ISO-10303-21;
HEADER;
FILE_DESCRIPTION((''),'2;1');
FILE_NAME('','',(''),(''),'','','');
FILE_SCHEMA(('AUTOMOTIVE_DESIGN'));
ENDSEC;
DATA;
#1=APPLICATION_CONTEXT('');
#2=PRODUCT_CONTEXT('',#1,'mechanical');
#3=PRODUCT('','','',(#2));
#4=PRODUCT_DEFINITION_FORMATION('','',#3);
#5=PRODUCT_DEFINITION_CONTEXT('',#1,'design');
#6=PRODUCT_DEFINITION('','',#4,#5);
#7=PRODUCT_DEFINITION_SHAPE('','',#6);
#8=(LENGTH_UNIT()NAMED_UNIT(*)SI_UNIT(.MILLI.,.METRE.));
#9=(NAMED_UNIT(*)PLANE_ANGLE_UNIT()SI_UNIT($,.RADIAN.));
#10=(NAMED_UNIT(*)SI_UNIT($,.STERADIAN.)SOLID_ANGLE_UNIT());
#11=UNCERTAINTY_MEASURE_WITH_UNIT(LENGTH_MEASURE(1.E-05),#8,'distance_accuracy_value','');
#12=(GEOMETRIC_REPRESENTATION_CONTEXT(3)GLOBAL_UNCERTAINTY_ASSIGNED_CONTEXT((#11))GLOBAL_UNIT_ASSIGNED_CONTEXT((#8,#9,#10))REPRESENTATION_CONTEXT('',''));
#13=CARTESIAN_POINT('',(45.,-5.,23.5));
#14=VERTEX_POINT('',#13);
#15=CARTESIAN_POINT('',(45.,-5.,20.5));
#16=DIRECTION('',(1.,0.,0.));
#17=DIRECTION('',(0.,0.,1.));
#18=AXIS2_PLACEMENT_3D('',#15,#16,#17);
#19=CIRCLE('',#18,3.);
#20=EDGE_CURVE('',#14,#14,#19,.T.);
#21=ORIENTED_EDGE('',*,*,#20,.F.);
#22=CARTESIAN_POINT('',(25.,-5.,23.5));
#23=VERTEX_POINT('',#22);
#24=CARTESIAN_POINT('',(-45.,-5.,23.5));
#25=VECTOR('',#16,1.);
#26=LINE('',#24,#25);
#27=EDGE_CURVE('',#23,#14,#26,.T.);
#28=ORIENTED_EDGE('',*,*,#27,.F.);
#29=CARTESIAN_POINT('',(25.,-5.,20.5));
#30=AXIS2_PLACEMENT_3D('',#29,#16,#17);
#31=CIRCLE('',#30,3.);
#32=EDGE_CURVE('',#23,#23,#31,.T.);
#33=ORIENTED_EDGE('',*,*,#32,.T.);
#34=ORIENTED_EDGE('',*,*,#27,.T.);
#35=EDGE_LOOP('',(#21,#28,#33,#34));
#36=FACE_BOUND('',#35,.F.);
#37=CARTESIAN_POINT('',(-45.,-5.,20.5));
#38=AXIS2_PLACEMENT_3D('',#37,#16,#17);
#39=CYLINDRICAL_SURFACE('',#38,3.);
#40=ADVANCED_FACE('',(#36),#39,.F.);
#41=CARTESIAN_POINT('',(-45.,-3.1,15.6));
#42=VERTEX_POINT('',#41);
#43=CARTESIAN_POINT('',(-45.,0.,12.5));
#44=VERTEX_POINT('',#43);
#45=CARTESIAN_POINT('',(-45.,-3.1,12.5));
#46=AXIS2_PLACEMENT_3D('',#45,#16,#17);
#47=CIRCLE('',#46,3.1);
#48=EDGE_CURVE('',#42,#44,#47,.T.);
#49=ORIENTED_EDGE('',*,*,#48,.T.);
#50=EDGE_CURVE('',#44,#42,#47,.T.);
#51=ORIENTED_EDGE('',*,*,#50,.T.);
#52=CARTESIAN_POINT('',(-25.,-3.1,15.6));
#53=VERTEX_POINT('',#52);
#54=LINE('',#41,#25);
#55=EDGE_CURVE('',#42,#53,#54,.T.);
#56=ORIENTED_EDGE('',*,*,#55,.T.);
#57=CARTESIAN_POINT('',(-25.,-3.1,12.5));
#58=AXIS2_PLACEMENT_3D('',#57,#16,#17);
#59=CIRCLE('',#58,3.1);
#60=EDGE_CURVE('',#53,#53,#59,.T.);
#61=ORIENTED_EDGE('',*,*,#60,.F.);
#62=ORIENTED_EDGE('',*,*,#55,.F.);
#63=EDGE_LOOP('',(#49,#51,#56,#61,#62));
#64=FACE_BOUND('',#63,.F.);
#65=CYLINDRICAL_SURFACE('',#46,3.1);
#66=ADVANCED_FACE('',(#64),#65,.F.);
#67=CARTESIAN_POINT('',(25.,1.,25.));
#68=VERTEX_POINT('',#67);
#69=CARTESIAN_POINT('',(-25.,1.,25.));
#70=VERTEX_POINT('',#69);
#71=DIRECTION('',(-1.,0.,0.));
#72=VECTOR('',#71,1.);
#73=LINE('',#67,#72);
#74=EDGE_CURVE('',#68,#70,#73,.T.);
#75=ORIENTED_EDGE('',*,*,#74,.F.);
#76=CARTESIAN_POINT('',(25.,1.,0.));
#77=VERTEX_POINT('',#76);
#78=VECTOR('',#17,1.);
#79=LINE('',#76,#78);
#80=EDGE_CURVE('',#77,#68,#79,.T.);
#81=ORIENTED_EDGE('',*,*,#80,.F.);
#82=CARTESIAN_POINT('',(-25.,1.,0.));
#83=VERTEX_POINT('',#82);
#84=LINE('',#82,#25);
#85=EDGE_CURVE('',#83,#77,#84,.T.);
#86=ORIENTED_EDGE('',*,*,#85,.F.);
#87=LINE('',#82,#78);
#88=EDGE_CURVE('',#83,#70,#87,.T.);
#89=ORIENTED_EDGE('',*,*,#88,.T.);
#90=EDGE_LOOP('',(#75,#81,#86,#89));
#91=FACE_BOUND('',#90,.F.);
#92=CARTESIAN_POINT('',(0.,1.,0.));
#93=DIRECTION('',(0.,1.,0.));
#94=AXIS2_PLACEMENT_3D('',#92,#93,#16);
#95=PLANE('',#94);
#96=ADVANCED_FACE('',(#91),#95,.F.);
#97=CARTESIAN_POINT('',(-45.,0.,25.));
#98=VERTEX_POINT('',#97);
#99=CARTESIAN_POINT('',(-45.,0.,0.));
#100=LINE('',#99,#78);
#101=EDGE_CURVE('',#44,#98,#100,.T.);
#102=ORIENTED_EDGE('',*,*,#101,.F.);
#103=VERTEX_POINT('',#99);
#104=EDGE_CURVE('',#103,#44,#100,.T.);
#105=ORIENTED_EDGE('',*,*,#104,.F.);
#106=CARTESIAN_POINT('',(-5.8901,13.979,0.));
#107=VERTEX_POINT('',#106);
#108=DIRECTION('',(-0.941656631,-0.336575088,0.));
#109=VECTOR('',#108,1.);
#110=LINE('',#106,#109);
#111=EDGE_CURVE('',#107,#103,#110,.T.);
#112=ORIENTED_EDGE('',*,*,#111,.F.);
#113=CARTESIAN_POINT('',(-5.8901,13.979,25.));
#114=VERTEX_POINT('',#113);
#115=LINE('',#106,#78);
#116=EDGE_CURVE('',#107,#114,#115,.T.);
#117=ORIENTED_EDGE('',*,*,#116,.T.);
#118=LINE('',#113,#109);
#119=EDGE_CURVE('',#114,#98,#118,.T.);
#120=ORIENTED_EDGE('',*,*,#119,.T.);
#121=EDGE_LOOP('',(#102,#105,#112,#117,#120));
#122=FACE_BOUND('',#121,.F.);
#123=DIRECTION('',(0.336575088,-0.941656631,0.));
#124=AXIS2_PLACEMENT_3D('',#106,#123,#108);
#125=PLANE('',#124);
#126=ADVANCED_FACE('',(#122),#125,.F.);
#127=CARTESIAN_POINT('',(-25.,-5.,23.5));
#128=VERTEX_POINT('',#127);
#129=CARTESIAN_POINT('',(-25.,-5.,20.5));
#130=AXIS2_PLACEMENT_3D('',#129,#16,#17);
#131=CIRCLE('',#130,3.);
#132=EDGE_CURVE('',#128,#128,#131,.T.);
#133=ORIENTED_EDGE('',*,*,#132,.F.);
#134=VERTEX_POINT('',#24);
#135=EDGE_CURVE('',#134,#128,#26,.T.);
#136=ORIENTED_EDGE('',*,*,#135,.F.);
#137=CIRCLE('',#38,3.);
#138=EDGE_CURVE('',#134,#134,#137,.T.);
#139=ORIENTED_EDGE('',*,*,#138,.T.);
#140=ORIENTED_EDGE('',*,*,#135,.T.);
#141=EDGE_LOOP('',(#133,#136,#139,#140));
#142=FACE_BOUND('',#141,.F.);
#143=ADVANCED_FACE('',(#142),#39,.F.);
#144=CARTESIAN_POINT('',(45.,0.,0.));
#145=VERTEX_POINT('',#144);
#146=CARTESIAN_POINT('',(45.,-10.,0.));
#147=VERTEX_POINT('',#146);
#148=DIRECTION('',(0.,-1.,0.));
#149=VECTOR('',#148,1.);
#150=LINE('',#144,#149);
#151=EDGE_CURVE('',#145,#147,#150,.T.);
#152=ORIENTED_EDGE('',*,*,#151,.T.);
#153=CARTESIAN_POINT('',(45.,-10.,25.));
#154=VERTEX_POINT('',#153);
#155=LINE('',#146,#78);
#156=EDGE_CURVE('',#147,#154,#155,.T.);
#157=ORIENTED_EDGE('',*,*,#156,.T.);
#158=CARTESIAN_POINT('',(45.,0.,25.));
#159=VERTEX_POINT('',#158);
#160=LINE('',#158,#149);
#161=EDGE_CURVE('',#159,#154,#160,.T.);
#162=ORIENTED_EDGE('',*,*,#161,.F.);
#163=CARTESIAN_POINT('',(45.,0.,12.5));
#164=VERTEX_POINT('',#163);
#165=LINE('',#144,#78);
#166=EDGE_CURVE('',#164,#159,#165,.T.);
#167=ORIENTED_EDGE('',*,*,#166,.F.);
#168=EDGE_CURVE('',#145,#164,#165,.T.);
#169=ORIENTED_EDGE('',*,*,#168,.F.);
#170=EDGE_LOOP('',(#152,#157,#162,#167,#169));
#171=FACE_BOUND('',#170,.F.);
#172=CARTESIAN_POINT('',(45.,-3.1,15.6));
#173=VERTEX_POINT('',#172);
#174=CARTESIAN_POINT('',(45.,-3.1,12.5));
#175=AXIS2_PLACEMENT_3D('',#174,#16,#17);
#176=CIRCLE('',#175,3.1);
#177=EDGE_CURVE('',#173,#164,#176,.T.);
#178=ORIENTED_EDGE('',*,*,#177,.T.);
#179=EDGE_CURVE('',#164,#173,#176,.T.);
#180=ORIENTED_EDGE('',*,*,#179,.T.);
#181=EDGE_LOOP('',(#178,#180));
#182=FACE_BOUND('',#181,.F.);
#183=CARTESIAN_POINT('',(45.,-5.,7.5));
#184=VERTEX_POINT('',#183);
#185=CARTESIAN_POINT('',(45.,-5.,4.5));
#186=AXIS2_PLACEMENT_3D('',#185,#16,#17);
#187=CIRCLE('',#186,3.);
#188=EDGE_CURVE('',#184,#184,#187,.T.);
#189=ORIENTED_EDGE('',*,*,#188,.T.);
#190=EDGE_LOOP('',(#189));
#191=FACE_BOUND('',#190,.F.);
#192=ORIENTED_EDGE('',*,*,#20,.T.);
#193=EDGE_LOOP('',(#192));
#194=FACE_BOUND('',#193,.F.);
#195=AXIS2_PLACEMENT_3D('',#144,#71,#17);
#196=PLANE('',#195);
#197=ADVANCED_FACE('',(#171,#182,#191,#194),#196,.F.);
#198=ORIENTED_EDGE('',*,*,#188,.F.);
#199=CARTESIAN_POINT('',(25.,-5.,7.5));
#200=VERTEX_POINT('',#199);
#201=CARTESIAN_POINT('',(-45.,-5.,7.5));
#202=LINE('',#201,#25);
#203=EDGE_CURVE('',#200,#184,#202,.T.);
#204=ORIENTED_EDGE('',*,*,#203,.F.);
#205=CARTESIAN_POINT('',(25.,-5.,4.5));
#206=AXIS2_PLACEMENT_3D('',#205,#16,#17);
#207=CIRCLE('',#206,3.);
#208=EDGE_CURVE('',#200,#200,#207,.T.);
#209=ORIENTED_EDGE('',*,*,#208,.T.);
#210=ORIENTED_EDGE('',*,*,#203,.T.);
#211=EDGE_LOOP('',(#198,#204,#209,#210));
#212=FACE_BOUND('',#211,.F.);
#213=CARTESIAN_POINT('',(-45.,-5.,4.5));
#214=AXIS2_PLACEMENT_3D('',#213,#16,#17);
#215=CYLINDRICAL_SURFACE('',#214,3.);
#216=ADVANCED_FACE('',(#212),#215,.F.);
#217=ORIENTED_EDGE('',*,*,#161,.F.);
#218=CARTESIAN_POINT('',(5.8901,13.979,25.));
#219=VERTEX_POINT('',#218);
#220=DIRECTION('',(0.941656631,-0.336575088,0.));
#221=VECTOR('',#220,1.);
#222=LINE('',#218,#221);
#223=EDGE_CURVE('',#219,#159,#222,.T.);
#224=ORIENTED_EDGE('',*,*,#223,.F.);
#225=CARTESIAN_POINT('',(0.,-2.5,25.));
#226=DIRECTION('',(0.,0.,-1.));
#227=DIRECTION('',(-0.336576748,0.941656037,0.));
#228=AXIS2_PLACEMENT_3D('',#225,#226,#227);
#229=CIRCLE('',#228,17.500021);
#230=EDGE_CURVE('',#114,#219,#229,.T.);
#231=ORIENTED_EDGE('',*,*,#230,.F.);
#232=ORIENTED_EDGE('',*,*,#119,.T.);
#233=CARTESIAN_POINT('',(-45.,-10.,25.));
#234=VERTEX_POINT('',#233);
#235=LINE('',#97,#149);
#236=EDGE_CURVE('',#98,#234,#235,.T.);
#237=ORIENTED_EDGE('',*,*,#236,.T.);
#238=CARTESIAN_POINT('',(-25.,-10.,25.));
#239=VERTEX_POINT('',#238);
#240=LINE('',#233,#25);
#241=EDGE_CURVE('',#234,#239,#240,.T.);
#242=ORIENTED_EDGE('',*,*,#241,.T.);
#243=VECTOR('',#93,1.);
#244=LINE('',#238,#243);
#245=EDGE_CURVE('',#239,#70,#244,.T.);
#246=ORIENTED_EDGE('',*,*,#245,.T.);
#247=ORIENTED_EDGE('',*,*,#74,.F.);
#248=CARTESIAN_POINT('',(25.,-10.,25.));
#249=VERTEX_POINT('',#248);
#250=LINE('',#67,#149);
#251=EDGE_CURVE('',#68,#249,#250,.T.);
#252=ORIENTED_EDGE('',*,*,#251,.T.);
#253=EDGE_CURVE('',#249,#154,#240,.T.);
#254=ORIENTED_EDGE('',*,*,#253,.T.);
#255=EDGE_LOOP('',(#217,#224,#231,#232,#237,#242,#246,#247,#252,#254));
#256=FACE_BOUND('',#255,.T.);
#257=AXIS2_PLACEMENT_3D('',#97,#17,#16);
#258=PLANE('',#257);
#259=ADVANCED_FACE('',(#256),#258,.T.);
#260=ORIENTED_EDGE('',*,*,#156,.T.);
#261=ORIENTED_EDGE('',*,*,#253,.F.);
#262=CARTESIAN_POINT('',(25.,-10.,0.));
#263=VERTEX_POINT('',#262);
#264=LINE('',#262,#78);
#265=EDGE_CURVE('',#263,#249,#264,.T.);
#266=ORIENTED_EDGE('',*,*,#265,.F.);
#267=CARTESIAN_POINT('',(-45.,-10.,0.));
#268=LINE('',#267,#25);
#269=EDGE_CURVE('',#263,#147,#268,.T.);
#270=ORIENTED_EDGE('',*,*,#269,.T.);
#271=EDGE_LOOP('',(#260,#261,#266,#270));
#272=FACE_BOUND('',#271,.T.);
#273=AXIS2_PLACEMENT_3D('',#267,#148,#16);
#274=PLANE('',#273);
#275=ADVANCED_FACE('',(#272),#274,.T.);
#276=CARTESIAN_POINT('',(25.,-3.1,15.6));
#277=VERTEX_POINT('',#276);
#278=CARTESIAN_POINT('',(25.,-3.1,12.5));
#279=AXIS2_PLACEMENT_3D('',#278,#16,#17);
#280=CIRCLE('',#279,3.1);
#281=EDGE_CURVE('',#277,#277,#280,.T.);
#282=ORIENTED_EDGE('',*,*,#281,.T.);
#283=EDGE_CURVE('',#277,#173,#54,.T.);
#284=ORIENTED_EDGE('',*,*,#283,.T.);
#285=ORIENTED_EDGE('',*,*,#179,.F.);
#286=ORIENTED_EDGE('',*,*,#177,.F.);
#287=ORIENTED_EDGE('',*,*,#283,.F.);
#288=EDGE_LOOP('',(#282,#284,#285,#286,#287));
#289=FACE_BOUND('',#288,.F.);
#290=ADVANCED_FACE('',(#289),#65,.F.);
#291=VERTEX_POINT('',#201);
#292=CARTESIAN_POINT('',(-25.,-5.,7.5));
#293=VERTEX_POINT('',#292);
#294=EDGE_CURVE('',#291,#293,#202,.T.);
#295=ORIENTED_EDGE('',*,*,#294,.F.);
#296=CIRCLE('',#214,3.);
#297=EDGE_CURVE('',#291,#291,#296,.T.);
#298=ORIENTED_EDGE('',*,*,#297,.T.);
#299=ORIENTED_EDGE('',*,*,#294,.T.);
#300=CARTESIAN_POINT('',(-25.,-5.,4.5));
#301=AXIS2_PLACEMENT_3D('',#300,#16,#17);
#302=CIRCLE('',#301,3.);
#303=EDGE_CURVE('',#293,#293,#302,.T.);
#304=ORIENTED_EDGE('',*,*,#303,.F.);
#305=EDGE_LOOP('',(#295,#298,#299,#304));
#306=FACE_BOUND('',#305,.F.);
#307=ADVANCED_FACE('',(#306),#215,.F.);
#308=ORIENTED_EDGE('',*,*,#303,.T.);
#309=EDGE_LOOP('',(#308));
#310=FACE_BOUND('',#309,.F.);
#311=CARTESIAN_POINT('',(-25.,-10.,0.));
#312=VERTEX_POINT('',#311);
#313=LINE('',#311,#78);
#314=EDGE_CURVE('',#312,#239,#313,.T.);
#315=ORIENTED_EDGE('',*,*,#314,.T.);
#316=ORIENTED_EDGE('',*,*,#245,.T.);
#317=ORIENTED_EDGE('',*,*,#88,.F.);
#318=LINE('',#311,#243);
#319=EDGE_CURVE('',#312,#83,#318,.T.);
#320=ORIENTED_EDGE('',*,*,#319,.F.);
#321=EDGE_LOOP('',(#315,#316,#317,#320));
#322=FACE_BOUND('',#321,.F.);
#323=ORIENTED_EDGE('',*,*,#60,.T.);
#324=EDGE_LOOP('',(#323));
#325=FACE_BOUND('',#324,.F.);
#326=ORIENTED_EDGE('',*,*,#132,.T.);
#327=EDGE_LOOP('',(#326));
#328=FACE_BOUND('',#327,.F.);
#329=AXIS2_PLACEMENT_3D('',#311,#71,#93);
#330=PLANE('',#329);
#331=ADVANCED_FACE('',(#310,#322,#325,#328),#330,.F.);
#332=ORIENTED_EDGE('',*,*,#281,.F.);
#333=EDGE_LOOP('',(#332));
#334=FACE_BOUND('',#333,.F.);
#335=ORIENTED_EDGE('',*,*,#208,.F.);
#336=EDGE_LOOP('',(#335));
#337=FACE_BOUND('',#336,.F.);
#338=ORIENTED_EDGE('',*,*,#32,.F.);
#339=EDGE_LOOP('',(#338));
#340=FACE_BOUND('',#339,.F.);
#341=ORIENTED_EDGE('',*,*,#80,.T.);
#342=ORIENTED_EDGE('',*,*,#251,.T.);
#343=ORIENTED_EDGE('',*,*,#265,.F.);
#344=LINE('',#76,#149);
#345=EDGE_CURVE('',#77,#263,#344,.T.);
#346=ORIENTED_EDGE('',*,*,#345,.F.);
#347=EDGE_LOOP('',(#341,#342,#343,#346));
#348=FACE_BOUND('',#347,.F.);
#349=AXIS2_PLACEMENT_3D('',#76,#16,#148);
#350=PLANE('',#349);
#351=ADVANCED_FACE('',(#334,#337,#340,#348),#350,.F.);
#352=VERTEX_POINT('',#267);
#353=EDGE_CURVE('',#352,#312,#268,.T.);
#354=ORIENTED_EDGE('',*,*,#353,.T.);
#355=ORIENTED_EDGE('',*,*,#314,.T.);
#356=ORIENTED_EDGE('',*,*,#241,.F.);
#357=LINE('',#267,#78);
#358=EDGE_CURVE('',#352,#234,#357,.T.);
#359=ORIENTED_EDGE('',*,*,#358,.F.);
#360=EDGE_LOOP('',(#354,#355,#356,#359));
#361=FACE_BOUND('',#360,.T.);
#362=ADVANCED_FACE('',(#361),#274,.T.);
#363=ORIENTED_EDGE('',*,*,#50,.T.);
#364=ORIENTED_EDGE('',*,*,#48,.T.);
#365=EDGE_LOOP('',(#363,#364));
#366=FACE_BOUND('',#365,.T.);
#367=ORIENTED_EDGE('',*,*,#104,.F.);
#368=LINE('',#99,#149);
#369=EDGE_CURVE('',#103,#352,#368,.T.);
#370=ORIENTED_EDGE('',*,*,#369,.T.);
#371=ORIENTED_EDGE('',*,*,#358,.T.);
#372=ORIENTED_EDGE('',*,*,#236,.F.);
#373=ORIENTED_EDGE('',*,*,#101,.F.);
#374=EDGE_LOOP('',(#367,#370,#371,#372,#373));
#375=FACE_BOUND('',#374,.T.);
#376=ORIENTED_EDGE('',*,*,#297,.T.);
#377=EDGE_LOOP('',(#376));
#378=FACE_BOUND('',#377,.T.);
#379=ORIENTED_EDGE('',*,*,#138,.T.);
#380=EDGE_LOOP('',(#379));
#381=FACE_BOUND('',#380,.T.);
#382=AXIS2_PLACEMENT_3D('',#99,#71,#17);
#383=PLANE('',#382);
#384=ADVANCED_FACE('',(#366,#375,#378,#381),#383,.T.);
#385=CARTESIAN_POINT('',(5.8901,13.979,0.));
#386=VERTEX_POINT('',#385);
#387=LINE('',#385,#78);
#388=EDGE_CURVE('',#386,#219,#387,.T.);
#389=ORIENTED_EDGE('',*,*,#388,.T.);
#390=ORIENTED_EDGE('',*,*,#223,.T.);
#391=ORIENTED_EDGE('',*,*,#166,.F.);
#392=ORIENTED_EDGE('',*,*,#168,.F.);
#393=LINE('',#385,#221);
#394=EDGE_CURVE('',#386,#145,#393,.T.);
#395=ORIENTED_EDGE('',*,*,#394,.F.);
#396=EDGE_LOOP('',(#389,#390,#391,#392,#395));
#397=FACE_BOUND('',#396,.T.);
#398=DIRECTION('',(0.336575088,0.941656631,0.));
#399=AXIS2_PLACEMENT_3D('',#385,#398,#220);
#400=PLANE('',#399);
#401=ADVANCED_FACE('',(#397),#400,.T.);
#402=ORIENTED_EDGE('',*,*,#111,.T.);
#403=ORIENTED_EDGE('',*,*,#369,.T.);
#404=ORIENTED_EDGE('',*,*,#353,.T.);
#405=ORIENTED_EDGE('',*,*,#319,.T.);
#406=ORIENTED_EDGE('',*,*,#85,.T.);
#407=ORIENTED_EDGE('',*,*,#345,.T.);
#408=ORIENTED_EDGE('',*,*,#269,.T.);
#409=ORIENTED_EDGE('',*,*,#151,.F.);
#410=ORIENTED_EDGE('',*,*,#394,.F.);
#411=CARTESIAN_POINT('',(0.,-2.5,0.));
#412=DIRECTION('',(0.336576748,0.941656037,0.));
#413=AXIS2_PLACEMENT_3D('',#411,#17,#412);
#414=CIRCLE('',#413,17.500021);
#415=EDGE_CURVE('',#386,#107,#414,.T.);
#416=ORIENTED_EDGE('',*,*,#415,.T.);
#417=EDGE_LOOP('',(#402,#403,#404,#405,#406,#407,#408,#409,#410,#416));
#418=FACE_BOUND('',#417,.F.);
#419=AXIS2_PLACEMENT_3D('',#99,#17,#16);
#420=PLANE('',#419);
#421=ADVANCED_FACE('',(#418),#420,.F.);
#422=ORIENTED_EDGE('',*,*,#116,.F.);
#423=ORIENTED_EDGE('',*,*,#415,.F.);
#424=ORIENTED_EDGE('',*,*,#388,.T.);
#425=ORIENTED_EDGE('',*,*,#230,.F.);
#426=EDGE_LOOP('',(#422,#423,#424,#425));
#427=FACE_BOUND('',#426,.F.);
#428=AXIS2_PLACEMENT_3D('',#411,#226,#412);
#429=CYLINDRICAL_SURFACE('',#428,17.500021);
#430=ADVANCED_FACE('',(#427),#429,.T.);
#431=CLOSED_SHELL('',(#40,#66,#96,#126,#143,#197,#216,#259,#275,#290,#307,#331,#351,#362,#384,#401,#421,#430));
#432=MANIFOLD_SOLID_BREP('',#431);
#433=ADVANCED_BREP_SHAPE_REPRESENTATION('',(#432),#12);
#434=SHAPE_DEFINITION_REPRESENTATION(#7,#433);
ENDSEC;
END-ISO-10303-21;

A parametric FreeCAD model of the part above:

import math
import FreeCAD as App
import Part
import Sketcher
from FreeCAD import Vector
Q = App.Units.Quantity


def add_polygon(sketch, points):
    """Adds a closed chain of lines whose ends are joined by coincident constraints."""
    first, n = sketch.GeometryCount, len(points)
    for a, b in zip(points, points[1:] + points[:1]):
        sketch.addGeometry(Part.LineSegment(App.Vector(*a, 0), App.Vector(*b, 0)), False)
    for i in range(n):
        sketch.addConstraint(Sketcher.Constraint("Coincident", first + i, 2, first + (i + 1) % n, 1))

doc = App.newDocument("Part")
body = doc.addObject("PartDesign::Body", "Body")

# Sketch on XY plane
sketch1 = body.newObject("Sketcher::SketchObject", "Sketch")
sketch1.AttachmentSupport = (doc.getObject("XY_Plane"), [""])
sketch1.MapMode = "FlatFace"
sketch1.addGeometry([
    Part.LineSegment(Vector(-6, 14, 0), Vector(-45, 0, 0)),
    Part.LineSegment(Vector(-45, 0, 0), Vector(45, 0, 0)),
    Part.LineSegment(Vector(45, 0, 0), Vector(6, 14, 0)),
    Part.ArcOfCircle(Part.Circle(Vector(0, -2, 0), Vector(0, 0, 1), 18), math.radians(70), math.radians(110)),
], False)
sketch1.addConstraint([
    Sketcher.Constraint("Coincident", 0, 2, 1, 1),
    Sketcher.Constraint("Coincident", 1, 2, 2, 1),
    Sketcher.Constraint("Tangent", 2, 2, 3, 1),
    Sketcher.Constraint("Tangent", 3, 2, 0, 1),
    Sketcher.Constraint("Horizontal", 1),
    Sketcher.Constraint("Symmetric", 0, 2, 1, 2, -1, 1),
    Sketcher.Constraint("PointOnObject", 3, 3, -2),
    Sketcher.Constraint("Radius", 3, Q("17.5 mm")),
    Sketcher.Constraint("DistanceX", 0, 2, -1, 1, Q("45 mm")),
    Sketcher.Constraint("DistanceY", 3, 3, -1, 1, Q("2.5 mm")),
])
pad1 = body.newObject("PartDesign::Pad", "Pad")
pad1.Profile = sketch1
pad1.Length = 25

# Sketch on XZ plane
sketch2 = body.newObject("Sketcher::SketchObject", "Sketch001")
sketch2.AttachmentSupport = (doc.getObject("XZ_Plane"), [""])
sketch2.MapMode = "FlatFace"
add_polygon(sketch2, [(45, 25), (-45, 25), (-45, 0), (45, 0)])  # lines 0-3
sketch2.addConstraint([
    Sketcher.Constraint("Horizontal", 0),
    Sketcher.Constraint("Vertical", 1),
    Sketcher.Constraint("Horizontal", 2),
    Sketcher.Constraint("Vertical", 3),
    Sketcher.Constraint("Symmetric", 1, 2, 2, 2, -1, 1),
    Sketcher.Constraint("DistanceX", 0, 2, 0, 1, Q("90 mm")),
    Sketcher.Constraint("DistanceY", 1, 2, 1, 1, Q("25 mm")),
])
pad2 = body.newObject("PartDesign::Pad", "Pad001")
pad2.Profile = sketch2
pad2.Length = 10

# Sketch on YZ plane
sketch3 = body.newObject("Sketcher::SketchObject", "Sketch002")
sketch3.AttachmentSupport = (doc.getObject("YZ_Plane"), [""])
sketch3.MapMode = "FlatFace"
sketch3.AttachmentOffset = App.Placement(Vector(0, 0, -45), App.Rotation())
sketch3.addGeometry([
    Part.Circle(Vector(-5, 4.5, 0), Vector(0, 0, 1), 3),
    Part.Circle(Vector(-5, 20.5, 0), Vector(0, 0, 1), 3),
], False)
sketch3.addConstraint([
    Sketcher.Constraint("Equal", 0, 1),
    Sketcher.Constraint("Vertical", 0, 3, 1, 3),
    Sketcher.Constraint("Diameter", 0, Q("6 mm")),
    Sketcher.Constraint("DistanceX", 0, 3, -1, 1, Q("5 mm")),
    Sketcher.Constraint("DistanceY", 0, 3, 1, 3, Q("16 mm")),
    Sketcher.Constraint("DistanceY", -1, 1, 0, 3, Q("4.5 mm")),
])
doc.recompute()
hole = body.newObject("PartDesign::Hole", "Hole")
hole.Profile = sketch3
hole.ThreadType = "None"
hole.Diameter = 6
hole.DepthType = "ThroughAll"
hole.Reversed = True

# Sketch on YZ plane
sketch4 = body.newObject("Sketcher::SketchObject", "Sketch003")
sketch4.AttachmentSupport = (doc.getObject("YZ_Plane"), [""])
sketch4.MapMode = "FlatFace"
sketch4.AttachmentOffset = App.Placement(Vector(0, 0, -45), App.Rotation())
sketch4.addGeometry(Part.Circle(Vector(-3.1, 12.5, 0), Vector(0, 0, 1), 3.1), False)
sketch4.addConstraint([
    Sketcher.Constraint("Diameter", 0, Q("6.2 mm")),
    Sketcher.Constraint("DistanceX", 0, 3, -1, 1, Q("3.1 mm")),
    Sketcher.Constraint("DistanceY", -1, 1, 0, 3, Q("12.5 mm")),
])
doc.recompute()
hole2 = body.newObject("PartDesign::Hole", "Hole001")
hole2.Profile = sketch4
hole2.ThreadType = "None"
hole2.Diameter = 6.2
hole2.DepthType = "ThroughAll"
hole2.Reversed = True

# Sketch on XY plane
sketch5 = body.newObject("Sketcher::SketchObject", "Sketch004")
sketch5.AttachmentSupport = (doc.getObject("XY_Plane"), [""])
sketch5.MapMode = "FlatFace"
add_polygon(sketch5, [(25, -10), (-25, -10), (-25, 1), (25, 1)])  # lines 0-3
sketch5.addConstraint([
    Sketcher.Constraint("Horizontal", 0),
    Sketcher.Constraint("Vertical", 1),
    Sketcher.Constraint("Horizontal", 2),
    Sketcher.Constraint("Vertical", 3),
    Sketcher.Constraint("DistanceX", 0, 2, 0, 1, Q("50 mm")),
    Sketcher.Constraint("DistanceY", 1, 1, 1, 2, Q("11 mm")),
    Sketcher.Constraint("DistanceX", 0, 2, -1, 1, Q("25 mm")),
    Sketcher.Constraint("DistanceY", 0, 2, -1, 1, Q("10 mm")),
])
pocket1 = body.newObject("PartDesign::Pocket", "Pocket")
pocket1.Profile = sketch5
pocket1.Length = 25
pocket1.Reversed = True

doc.recompute()
